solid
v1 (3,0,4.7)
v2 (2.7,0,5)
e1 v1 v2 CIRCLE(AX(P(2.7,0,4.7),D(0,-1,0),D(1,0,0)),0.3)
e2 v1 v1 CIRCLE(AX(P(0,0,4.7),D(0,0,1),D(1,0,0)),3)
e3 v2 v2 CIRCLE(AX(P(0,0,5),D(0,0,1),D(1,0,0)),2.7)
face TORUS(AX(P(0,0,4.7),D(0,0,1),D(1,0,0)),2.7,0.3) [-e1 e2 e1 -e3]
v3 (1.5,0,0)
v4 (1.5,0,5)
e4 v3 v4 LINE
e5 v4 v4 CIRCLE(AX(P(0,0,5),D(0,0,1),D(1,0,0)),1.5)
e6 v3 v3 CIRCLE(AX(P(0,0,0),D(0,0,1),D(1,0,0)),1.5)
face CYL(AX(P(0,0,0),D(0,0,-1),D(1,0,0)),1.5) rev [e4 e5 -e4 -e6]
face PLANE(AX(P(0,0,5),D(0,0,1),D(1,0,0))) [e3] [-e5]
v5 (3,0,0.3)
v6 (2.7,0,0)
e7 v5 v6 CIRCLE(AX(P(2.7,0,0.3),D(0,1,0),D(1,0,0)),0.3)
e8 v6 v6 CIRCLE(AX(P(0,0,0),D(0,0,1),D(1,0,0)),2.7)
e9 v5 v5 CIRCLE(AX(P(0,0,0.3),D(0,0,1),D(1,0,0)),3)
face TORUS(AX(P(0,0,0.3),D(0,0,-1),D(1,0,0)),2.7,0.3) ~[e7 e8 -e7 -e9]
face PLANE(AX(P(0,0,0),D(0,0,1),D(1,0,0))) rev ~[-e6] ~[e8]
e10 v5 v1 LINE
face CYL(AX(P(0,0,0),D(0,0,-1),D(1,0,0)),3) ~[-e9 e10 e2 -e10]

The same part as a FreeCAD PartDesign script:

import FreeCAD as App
import Part
import Sketcher

V = App.Vector


def edges_at(feature, points):
    """Names of the edges that pass closest to the given points."""
    edges = feature.Shape.Edges
    near = lambda p: min(range(len(edges)), key=lambda i: edges[i].distToShape(Part.Vertex(*p))[0])
    return sorted({f"Edge{near(p) + 1}" for p in points})

doc = App.newDocument("Part")
body = doc.addObject("PartDesign::Body", "Body")

sketch1 = body.newObject("Sketcher::SketchObject", "Sketch")
sketch1.AttachmentSupport = (doc.getObject("XY_Plane"), [""])
sketch1.MapMode = "FlatFace"
sketch1.addGeometry(Part.Circle(V(0, 0, 0), V(0, 0, 1), 3), False)
sketch1.addGeometry(Part.Circle(V(0, 0, 0), V(0, 0, 1), 1.5), False)
sketch1.addConstraint(Sketcher.Constraint("Coincident", 0, 3, -1, 1))
sketch1.addConstraint(Sketcher.Constraint("Coincident", 1, 3, -1, 1))
sketch1.addConstraint(Sketcher.Constraint("Diameter", 0, 6.0))
sketch1.addConstraint(Sketcher.Constraint("Diameter", 1, 3.0))
pad1 = body.newObject("PartDesign::Pad", "Pad")
pad1.Profile = sketch1
pad1.Length = 5
doc.recompute()

fillet = body.newObject("PartDesign::Fillet", "Fillet")
fillet.Base = (pad1, edges_at(pad1, [(-3, 0, 5), (-3, 0, 0)]))
fillet.Radius = 0.3

doc.recompute()
